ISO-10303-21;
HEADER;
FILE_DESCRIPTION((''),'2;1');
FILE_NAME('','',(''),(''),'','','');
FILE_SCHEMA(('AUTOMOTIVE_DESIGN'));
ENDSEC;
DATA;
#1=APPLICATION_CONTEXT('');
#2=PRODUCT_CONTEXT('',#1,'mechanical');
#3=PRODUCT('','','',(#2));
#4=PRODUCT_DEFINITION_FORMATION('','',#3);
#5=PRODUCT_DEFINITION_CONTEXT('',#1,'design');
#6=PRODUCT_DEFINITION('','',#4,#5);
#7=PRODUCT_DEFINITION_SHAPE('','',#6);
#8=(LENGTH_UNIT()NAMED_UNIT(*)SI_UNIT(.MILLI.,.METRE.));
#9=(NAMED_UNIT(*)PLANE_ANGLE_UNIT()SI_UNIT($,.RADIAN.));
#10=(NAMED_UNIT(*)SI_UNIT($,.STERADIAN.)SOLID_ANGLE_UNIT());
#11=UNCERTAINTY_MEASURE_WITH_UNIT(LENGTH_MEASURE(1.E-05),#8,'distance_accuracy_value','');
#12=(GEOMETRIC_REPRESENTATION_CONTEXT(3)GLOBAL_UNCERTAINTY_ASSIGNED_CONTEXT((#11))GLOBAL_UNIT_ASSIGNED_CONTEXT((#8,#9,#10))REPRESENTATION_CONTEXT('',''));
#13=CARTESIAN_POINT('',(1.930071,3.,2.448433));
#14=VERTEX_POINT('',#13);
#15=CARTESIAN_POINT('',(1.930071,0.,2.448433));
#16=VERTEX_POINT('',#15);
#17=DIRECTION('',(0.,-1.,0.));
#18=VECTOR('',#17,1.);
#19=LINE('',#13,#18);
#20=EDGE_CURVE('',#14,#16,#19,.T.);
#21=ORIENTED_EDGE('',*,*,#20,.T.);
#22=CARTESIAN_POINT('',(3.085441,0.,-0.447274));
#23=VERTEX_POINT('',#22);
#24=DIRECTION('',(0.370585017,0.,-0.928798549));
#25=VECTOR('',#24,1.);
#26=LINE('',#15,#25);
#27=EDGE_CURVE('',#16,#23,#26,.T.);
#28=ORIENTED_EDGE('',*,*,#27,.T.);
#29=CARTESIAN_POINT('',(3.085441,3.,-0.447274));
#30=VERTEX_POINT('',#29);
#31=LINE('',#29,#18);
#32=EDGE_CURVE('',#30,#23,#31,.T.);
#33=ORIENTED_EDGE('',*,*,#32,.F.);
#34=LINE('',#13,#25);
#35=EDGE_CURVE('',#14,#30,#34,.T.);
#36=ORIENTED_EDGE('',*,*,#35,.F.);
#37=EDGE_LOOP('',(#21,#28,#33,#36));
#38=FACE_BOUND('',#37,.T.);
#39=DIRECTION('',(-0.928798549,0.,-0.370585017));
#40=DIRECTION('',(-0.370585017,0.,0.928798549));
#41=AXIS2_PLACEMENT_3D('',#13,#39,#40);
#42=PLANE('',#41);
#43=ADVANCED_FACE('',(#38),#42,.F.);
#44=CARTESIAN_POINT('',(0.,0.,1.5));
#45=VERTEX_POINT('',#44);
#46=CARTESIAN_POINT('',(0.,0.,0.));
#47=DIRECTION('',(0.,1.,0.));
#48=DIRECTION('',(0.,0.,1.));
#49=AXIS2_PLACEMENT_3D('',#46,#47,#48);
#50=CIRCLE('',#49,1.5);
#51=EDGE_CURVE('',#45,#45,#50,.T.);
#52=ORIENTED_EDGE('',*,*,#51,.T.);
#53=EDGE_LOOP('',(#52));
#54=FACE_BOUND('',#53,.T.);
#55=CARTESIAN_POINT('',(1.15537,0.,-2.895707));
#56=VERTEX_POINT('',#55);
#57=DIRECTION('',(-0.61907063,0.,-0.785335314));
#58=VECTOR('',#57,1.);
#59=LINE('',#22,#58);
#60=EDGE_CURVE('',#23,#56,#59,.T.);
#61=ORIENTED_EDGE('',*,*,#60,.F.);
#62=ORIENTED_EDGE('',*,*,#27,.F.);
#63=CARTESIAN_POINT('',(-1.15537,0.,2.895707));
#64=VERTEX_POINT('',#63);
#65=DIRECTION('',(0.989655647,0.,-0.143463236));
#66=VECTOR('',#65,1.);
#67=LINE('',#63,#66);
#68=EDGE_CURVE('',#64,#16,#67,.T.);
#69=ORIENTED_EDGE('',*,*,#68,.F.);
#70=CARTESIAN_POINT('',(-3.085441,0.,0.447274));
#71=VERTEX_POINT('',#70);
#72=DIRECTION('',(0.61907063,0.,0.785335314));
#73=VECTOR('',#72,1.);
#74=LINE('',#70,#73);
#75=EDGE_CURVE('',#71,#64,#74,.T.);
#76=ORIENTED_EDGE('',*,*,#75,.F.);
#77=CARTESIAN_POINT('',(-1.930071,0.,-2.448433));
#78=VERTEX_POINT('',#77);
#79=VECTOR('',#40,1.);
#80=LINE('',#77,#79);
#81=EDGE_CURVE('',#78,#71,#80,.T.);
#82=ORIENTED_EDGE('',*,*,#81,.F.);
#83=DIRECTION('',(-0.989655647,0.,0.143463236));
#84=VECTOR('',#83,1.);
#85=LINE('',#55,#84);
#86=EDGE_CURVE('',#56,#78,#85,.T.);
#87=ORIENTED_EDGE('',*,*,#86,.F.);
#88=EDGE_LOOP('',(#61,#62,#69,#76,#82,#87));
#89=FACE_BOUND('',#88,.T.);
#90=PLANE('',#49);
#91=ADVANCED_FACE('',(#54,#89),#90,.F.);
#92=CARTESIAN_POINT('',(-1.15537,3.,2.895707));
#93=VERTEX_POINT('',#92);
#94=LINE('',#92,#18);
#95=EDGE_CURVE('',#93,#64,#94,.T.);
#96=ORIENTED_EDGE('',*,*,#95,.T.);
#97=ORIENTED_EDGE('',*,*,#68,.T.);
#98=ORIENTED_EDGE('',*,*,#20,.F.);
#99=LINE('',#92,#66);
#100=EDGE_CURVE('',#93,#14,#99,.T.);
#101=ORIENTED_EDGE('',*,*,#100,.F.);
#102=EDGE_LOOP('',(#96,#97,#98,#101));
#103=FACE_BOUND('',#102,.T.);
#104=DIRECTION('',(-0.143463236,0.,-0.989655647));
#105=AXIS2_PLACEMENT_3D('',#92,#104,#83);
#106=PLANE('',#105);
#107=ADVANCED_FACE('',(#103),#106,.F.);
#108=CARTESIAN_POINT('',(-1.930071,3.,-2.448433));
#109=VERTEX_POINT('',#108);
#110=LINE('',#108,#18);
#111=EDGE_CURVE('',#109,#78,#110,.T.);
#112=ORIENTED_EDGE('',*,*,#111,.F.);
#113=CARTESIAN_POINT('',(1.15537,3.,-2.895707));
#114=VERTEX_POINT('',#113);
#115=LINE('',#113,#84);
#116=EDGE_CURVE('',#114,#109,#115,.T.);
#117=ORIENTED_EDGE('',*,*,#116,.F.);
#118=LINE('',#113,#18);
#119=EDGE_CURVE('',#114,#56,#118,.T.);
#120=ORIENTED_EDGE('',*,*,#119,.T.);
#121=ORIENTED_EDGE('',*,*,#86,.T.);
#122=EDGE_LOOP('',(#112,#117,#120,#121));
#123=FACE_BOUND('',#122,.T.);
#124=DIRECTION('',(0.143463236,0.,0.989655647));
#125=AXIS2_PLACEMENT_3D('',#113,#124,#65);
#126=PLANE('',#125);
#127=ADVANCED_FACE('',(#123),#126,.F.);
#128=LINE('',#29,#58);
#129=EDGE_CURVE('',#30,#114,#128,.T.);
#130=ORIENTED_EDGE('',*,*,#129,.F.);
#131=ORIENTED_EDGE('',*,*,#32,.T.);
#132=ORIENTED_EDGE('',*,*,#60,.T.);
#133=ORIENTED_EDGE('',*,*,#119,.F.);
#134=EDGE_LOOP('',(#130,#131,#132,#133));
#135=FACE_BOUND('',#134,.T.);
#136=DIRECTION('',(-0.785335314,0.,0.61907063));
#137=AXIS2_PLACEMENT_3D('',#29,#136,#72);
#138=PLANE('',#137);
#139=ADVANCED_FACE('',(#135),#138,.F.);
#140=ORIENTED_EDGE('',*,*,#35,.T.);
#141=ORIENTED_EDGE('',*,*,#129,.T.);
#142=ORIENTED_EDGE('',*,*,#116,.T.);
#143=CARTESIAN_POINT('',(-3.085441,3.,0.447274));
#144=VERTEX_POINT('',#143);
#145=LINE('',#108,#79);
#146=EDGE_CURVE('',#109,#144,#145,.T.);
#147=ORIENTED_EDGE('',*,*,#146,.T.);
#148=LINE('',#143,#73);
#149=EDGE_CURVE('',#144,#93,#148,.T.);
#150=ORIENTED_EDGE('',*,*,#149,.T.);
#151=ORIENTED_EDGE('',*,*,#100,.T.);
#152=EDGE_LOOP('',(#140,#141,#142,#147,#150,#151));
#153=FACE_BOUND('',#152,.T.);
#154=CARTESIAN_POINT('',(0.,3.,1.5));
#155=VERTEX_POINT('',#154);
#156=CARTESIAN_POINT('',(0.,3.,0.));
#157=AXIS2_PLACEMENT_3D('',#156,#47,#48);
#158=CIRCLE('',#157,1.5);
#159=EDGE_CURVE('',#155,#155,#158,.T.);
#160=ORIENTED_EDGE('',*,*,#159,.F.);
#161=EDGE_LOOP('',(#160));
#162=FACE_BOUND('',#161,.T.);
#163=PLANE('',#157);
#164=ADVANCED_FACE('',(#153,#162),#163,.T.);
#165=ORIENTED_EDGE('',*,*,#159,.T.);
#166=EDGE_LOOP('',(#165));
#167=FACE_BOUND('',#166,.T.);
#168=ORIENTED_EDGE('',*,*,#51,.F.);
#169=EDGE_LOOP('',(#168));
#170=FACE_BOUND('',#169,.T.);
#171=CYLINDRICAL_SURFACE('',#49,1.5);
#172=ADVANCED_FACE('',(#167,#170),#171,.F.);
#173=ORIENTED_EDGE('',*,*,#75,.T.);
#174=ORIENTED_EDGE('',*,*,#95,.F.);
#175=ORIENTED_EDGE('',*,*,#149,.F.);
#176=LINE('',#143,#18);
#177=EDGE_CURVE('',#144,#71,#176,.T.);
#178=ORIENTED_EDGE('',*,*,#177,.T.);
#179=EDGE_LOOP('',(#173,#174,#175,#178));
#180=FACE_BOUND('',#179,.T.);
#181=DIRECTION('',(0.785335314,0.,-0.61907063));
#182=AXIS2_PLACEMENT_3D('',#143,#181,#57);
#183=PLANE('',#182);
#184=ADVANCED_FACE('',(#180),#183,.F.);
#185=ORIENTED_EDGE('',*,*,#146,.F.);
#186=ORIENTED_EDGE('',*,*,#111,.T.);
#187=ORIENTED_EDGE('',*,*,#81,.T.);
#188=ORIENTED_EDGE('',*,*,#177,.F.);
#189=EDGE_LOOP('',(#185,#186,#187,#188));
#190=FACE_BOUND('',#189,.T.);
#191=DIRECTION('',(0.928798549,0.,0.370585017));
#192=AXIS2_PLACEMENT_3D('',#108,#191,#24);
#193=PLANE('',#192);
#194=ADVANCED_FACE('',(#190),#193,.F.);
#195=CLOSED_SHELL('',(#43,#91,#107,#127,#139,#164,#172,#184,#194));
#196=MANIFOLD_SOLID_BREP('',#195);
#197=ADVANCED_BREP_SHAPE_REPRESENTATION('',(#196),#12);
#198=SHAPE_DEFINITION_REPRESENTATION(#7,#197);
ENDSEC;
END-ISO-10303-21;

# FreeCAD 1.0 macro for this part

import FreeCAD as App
import Part
import Sketcher
from FreeCAD import Vector

doc = App.newDocument("Part")
body = doc.addObject("PartDesign::Body", "Body")

# Sketch on XZ plane
sketch1 = body.newObject("Sketcher::SketchObject", "Sketch")
sketch1.AttachmentSupport = (doc.getObject("XZ_Plane"), [""])
sketch1.MapMode = "FlatFace"
sketch1.addGeometry(Part.LineSegment(Vector(1.9, 2.4, 0), Vector(3.1, -0.4, 0)), False)
sketch1.addGeometry(Part.LineSegment(Vector(3.1, -0.4, 0), Vector(1.2, -2.9, 0)), False)
sketch1.addGeometry(Part.LineSegment(Vector(1.2, -2.9, 0), Vector(-1.9, -2.4, 0)), False)
sketch1.addGeometry(Part.LineSegment(Vector(-1.9, -2.4, 0), Vector(-3.1, 0.4, 0)), False)
sketch1.addGeometry(Part.LineSegment(Vector(-3.1, 0.4, 0), Vector(-1.2, 2.9, 0)), False)
sketch1.addGeometry(Part.LineSegment(Vector(-1.2, 2.9, 0), Vector(1.9, 2.4, 0)), False)
sketch1.addConstraint(Sketcher.Constraint("Coincident", 0, 2, 1, 1))
sketch1.addConstraint(Sketcher.Constraint("Coincident", 1, 2, 2, 1))
sketch1.addConstraint(Sketcher.Constraint("Coincident", 2, 2, 3, 1))
sketch1.addConstraint(Sketcher.Constraint("Coincident", 3, 2, 4, 1))
sketch1.addConstraint(Sketcher.Constraint("Coincident", 4, 2, 5, 1))
sketch1.addConstraint(Sketcher.Constraint("Coincident", 5, 2, 0, 1))
sketch1.addConstraint(Sketcher.Constraint("Symmetric", 0, 2, 3, 2, -1, 1))
sketch1.addConstraint(Sketcher.Constraint("Symmetric", 1, 2, 4, 2, -1, 1))
sketch1.addConstraint(Sketcher.Constraint("Symmetric", 2, 2, 5, 2, -1, 1))
sketch1.addConstraint(Sketcher.Constraint("Equal", 0, 1))
sketch1.addConstraint(Sketcher.Constraint("Equal", 1, 2))
sketch1.addConstraint(Sketcher.Constraint("DistanceX", 2, 2, 4, 2, 0.774701))
sketch1.addConstraint(Sketcher.Constraint("Distance", 0, 3.117691))
sketch1.addConstraint(Sketcher.Constraint("DistanceX", -1, 1, 0, 2, 3.085441))
sketch1.addConstraint(Sketcher.Constraint("DistanceX", -1, 1, 1, 2, 1.15537))
pad1 = body.newObject("PartDesign::Pad", "Pad")
pad1.Profile = sketch1
pad1.Length = 3
pad1.Reversed = True

# Sketch on XZ plane
sketch2 = body.newObject("Sketcher::SketchObject", "Sketch001")
sketch2.AttachmentSupport = (doc.getObject("XZ_Plane"), [""])
sketch2.MapMode = "FlatFace"
sketch2.AttachmentOffset = App.Placement(Vector(0, 0, -3), App.Rotation())
sketch2.addGeometry(Part.Circle(Vector(0, 0, 0), Vector(0, 0, 1), 1.5), False)
sketch2.addConstraint(Sketcher.Constraint("Coincident", 0, 3, -1, 1))
sketch2.addConstraint(Sketcher.Constraint("Diameter", 0, 3.0))
pocket1 = body.newObject("PartDesign::Pocket", "Pocket")
pocket1.Profile = sketch2
pocket1.Length = 3
pocket1.Reversed = True

doc.recompute()
